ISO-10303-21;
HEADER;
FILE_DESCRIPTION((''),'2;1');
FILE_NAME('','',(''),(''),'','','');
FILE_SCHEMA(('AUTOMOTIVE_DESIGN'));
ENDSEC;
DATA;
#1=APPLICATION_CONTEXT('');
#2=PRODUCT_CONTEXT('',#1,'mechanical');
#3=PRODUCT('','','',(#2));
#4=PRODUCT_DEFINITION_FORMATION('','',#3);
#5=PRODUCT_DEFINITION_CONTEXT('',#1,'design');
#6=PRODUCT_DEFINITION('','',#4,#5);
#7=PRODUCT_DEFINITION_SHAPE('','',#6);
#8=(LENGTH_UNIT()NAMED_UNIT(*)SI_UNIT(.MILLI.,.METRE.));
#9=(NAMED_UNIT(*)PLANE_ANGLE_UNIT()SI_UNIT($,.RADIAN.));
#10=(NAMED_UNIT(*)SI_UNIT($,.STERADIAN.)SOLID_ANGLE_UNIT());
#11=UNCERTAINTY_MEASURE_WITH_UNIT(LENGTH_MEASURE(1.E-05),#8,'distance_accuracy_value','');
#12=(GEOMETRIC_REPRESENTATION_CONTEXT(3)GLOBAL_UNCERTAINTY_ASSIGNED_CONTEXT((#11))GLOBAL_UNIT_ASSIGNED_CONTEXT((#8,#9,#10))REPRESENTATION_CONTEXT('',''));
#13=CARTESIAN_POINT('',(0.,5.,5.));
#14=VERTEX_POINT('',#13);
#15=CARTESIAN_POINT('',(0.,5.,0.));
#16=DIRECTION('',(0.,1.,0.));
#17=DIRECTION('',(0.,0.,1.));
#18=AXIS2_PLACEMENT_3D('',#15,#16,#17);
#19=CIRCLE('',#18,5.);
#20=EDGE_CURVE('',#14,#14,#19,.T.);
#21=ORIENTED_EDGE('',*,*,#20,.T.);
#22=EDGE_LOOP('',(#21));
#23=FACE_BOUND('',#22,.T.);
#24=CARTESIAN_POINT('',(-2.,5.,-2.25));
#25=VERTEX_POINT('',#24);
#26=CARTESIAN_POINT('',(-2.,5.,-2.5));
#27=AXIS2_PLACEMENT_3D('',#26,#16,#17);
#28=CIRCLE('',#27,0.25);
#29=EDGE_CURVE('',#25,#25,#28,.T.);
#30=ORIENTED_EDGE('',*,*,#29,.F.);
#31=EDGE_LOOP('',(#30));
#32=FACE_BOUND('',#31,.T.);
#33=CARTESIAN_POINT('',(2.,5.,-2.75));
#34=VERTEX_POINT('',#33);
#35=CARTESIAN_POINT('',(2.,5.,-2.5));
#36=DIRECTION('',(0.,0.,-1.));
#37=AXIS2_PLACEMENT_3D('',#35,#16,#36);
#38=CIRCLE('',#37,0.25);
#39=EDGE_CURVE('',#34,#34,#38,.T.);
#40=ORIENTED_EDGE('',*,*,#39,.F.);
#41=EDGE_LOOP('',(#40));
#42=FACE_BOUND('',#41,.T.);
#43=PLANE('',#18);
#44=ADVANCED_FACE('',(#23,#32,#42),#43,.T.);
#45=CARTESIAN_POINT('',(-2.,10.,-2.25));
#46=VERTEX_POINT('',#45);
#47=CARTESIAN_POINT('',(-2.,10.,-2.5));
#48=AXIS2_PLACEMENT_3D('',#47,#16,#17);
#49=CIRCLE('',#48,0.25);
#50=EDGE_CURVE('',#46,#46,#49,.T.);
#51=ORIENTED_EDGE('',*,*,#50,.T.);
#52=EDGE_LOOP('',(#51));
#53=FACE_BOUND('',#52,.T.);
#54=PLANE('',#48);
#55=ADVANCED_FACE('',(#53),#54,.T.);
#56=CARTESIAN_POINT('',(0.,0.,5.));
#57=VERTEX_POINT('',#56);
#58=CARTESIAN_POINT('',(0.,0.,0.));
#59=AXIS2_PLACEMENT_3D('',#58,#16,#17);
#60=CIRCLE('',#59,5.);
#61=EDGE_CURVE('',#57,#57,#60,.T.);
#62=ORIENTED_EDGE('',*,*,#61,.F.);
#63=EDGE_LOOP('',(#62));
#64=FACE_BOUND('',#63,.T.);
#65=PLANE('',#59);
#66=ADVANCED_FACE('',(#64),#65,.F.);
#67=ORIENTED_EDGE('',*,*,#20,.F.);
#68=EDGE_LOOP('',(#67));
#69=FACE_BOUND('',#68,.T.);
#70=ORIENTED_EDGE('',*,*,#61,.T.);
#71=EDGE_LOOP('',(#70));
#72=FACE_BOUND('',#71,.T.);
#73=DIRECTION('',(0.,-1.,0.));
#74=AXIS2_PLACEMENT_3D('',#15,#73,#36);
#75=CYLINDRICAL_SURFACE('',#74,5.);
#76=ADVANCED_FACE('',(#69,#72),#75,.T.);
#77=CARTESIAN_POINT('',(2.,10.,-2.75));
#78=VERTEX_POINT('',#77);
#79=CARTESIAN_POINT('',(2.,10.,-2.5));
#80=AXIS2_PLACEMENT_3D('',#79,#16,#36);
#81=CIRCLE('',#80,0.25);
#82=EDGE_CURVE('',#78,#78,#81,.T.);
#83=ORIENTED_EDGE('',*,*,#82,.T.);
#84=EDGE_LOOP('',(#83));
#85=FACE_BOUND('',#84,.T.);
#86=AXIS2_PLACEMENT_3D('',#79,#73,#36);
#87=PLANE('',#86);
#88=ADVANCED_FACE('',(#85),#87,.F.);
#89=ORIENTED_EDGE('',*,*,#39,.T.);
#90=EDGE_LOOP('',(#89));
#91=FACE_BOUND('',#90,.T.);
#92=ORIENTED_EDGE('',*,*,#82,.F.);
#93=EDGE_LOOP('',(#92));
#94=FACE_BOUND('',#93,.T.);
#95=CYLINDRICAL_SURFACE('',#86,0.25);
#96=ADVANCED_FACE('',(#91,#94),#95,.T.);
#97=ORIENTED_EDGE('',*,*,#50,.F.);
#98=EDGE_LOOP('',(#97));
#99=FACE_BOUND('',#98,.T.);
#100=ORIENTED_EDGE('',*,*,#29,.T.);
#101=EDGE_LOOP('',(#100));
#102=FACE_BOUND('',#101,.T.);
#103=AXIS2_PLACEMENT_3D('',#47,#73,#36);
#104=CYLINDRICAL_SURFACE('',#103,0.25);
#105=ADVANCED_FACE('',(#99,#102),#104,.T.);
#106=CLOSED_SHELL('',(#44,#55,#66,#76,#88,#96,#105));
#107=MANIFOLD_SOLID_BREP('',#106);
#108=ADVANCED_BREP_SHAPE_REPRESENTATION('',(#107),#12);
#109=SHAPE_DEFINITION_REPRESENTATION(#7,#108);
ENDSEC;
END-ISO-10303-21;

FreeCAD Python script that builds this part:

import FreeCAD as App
import Part
import Sketcher
from FreeCAD import Vector
Q = App.Units.Quantity

doc = App.newDocument("Part")
body = doc.addObject("PartDesign::Body", "Body")

sketch1 = doc.addObject("Sketcher::SketchObject", "Sketch")
body.addObject(sketch1)
sketch1.AttachmentSupport = (doc.XZ_Plane, [""])
sketch1.MapMode = "FlatFace"
sketch1.addGeometry(Part.Circle(Vector(0, 0, 0), Vector(0, 0, 1), 5), False)
sketch1.addConstraint([
    Sketcher.Constraint("Coincident", 0, 3, -1, 1),
    Sketcher.Constraint("Diameter", 0, Q("10 mm")),
])
pad1 = doc.addObject("PartDesign::Pad", "Pad")
body.addObject(pad1)
pad1.Profile = sketch1
pad1.Length = 5
pad1.Reversed = True

sketch2 = doc.addObject("Sketcher::SketchObject", "Sketch001")
body.addObject(sketch2)
sketch2.AttachmentSupport = (doc.XZ_Plane, [""])
sketch2.MapMode = "FlatFace"
sketch2.AttachmentOffset = App.Placement(Vector(0, 0, -5), App.Rotation())
sketch2.addGeometry([
    Part.Circle(Vector(-2, -2.5, 0), Vector(0, 0, 1), 0.25),
    Part.Circle(Vector(2, -2.5, 0), Vector(0, 0, 1), 0.25),
], False)
sketch2.addConstraint([
    Sketcher.Constraint("Equal", 0, 1),
    Sketcher.Constraint("Symmetric", 0, 3, 1, 3, -2),
    Sketcher.Constraint("Diameter", 0, Q("0.5 mm")),
    Sketcher.Constraint("DistanceX", 0, 3, -1, 1, Q("2 mm")),
    Sketcher.Constraint("DistanceY", 0, 3, -1, 1, Q("2.5 mm")),
])
pad2 = doc.addObject("PartDesign::Pad", "Pad001")
body.addObject(pad2)
pad2.Profile = sketch2
pad2.Length = 5
pad2.Reversed = True

doc.recompute()
